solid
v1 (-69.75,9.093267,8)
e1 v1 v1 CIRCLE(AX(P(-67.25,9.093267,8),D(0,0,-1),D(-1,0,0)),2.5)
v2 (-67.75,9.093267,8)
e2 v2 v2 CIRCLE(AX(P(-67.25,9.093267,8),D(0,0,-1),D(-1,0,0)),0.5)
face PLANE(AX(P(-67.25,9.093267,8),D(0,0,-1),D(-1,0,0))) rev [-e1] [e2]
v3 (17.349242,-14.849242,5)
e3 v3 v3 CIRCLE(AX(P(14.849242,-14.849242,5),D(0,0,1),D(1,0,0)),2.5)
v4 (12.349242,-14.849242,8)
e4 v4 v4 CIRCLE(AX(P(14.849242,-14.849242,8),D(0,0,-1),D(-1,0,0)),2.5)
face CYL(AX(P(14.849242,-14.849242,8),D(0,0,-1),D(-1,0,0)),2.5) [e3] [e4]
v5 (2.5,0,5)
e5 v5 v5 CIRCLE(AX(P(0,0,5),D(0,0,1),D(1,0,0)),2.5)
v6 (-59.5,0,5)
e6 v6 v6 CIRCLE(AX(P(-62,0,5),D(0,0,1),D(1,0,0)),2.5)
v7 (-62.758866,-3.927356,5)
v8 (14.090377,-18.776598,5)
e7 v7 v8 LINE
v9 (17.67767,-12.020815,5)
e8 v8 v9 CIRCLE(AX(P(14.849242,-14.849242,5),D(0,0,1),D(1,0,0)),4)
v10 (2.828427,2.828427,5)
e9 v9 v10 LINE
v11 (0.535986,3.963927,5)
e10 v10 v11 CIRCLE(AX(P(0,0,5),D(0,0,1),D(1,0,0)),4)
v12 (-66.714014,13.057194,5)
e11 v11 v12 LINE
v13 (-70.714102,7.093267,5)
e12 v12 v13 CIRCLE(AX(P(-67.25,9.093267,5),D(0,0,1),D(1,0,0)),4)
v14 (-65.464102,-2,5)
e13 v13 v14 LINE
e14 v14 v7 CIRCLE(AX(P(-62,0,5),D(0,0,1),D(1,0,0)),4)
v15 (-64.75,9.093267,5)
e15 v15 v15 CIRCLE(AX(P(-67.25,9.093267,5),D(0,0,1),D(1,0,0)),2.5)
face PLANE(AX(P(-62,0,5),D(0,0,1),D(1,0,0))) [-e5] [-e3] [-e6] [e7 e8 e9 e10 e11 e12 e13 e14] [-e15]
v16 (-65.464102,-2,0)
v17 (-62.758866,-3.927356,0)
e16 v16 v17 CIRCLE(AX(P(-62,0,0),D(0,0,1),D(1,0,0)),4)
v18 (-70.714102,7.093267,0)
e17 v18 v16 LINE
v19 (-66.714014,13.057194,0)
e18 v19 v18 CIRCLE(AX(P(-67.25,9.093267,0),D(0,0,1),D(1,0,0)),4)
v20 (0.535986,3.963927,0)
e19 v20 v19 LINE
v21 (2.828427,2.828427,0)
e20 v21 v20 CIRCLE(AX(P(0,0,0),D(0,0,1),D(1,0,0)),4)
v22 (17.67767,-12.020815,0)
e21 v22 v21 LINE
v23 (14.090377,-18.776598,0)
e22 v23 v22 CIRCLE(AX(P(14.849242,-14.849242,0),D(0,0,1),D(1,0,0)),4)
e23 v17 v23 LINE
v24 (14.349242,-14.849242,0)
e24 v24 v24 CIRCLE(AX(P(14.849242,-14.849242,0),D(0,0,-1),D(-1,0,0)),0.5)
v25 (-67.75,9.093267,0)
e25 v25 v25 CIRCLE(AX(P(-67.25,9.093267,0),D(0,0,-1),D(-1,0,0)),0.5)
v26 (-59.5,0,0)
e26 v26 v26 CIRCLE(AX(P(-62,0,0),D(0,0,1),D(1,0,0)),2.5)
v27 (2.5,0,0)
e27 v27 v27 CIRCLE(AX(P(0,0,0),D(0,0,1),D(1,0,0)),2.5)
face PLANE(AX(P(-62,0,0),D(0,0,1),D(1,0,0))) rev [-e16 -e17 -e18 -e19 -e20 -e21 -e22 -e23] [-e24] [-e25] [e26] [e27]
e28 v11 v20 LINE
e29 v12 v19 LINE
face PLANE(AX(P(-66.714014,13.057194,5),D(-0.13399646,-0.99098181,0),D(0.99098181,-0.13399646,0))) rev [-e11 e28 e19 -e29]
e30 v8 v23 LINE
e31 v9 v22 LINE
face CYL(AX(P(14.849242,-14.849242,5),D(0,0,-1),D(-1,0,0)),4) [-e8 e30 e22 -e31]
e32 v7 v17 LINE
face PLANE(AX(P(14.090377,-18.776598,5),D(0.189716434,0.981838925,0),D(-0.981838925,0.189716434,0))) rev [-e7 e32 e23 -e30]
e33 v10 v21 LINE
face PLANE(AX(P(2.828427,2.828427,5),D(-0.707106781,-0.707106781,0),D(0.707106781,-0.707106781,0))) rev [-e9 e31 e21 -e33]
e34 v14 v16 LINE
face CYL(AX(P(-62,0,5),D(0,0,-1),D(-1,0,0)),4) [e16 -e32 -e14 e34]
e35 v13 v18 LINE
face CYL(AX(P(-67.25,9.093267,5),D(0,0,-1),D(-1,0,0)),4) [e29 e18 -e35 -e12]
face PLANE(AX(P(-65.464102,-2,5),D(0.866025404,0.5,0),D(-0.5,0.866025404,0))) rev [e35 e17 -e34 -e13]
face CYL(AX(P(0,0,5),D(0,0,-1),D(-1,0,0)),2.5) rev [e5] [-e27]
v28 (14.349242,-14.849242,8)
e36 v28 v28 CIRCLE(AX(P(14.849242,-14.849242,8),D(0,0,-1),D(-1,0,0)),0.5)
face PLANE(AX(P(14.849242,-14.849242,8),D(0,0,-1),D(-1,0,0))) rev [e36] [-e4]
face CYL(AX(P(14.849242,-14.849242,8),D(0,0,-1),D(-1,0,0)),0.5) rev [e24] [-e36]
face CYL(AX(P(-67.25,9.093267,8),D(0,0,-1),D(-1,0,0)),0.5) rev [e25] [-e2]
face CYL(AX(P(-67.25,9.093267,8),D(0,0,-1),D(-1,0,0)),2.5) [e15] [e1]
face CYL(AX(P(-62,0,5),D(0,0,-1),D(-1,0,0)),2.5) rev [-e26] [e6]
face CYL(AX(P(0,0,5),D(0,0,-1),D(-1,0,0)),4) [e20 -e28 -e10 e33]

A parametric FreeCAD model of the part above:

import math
import FreeCAD as App
import Part
import Sketcher
from FreeCAD import Vector
Q = App.Units.Quantity

doc = App.newDocument("Part")
body = doc.addObject("PartDesign::Body", "Body")

# Sketch on XY plane
sketch1 = doc.addObject("Sketcher::SketchObject", "Sketch")
body.addObject(sketch1)
sketch1.AttachmentSupport = (doc.XY_Plane, [""])
sketch1.MapMode = "FlatFace"
sketch1.addGeometry([
    Part.LineSegment(Vector(0.5, 4, 0), Vector(-66.7, 13.1, 0)),  # 0
    Part.ArcOfCircle(Part.Circle(Vector(-67.2, 9.1, 0), Vector(0, 0, 1), 4), math.radians(82), math.radians(210)),  # 1
    Part.LineSegment(Vector(-70.7, 7.1, 0), Vector(-65.5, -2, 0)),  # 2
    Part.ArcOfCircle(Part.Circle(Vector(-62, 0, 0), Vector(0, 0, 1), 4), math.radians(-150), math.radians(-101)),  # 3
    Part.LineSegment(Vector(-62.8, -3.9, 0), Vector(14.1, -18.8, 0)),  # 4
    Part.ArcOfCircle(Part.Circle(Vector(14.8, -14.8, 0), Vector(0, 0, 1), 4), math.radians(-101), math.radians(45)),  # 5
    Part.LineSegment(Vector(17.7, -12, 0), Vector(2.8, 2.8, 0)),  # 6
    Part.ArcOfCircle(Part.Circle(Vector(0, 0, 0), Vector(0, 0, 1), 4), math.radians(45), math.radians(82)),  # 7
    Part.Circle(Vector(14.8, -14.8, 0), Vector(0, 0, 1), 2.5),  # 8
    Part.Circle(Vector(0, 0, 0), Vector(0, 0, 1), 2.5),  # 9
    Part.Circle(Vector(-62, 0, 0), Vector(0, 0, 1), 2.5),  # 10
    Part.Circle(Vector(-67.2, 9.1, 0), Vector(0, 0, 1), 2.5),  # 11
], False)
sketch1.addConstraint([
    Sketcher.Constraint("Tangent", 0, 2, 1, 1),
    Sketcher.Constraint("Tangent", 1, 2, 2, 1),
    Sketcher.Constraint("Tangent", 2, 2, 3, 1),
    Sketcher.Constraint("Tangent", 3, 2, 4, 1),
    Sketcher.Constraint("Tangent", 4, 2, 5, 1),
    Sketcher.Constraint("Tangent", 5, 2, 6, 1),
    Sketcher.Constraint("Tangent", 6, 2, 7, 1),
    Sketcher.Constraint("Tangent", 7, 2, 0, 1),
    Sketcher.Constraint("Coincident", 7, 3, -1, 1),
    Sketcher.Constraint("Coincident", 9, 3, -1, 1),
    Sketcher.Constraint("Coincident", 8, 3, 5, 3),
    Sketcher.Constraint("Coincident", 10, 3, 3, 3),
    Sketcher.Constraint("Coincident", 11, 3, 1, 3),
    Sketcher.Constraint("Equal", 1, 3),
    Sketcher.Constraint("Equal", 3, 5),
    Sketcher.Constraint("Equal", 5, 7),
    Sketcher.Constraint("Equal", 8, 9),
    Sketcher.Constraint("Equal", 9, 10),
    Sketcher.Constraint("Equal", 10, 11),
    Sketcher.Constraint("PointOnObject", 3, 3, -1),
    Sketcher.Constraint("Diameter", 8, 5.0),
    Sketcher.Constraint("Radius", 1, 4.0),
    Sketcher.Constraint("Angle", 2, Q("-60 deg")),
    Sketcher.Constraint("Angle", 6, Q("135 deg")),
    Sketcher.Constraint("Distance", 6, 21.0),
    Sketcher.Constraint("DistanceX", 3, 3, -1, 1, 62.0),
    Sketcher.Constraint("Distance", 2, 10.5),
])
pad1 = doc.addObject("PartDesign::Pad", "Pad")
body.addObject(pad1)
pad1.Profile = sketch1
pad1.Length = 5

# Sketch on XY plane
sketch2 = doc.addObject("Sketcher::SketchObject", "Sketch001")
body.addObject(sketch2)
sketch2.AttachmentSupport = (doc.XY_Plane, [""])
sketch2.MapMode = "FlatFace"
sketch2.addGeometry([
    Part.Circle(Vector(-67.2, 9.1, 0), Vector(0, 0, 1), 2.5),
    Part.Circle(Vector(-67.2, 9.1, 0), Vector(0, 0, 1), 0.5),
    Part.Circle(Vector(14.8, -14.8, 0), Vector(0, 0, 1), 2.5),
    Part.Circle(Vector(14.8, -14.8, 0), Vector(0, 0, 1), 0.5),
], False)
sketch2.addConstraint([
    Sketcher.Constraint("Coincident", 1, 3, 0, 3),
    Sketcher.Constraint("Coincident", 3, 3, 2, 3),
    Sketcher.Constraint("Equal", 0, 2),
    Sketcher.Constraint("Equal", 1, 3),
    Sketcher.Constraint("Diameter", 0, 5.0),
    Sketcher.Constraint("Diameter", 1, 1.0),
    Sketcher.Constraint("DistanceX", 0, 3, -1, 1, 67.25),
    Sketcher.Constraint("DistanceY", 2, 3, 0, 3, 23.942509),
    Sketcher.Constraint("DistanceY", -1, 1, 0, 3, 9.093267),
    Sketcher.Constraint("DistanceX", -1, 1, 2, 3, 14.849242),
])
pad2 = doc.addObject("PartDesign::Pad", "Pad001")
body.addObject(pad2)
pad2.Profile = sketch2
pad2.Length = 8

doc.recompute()
